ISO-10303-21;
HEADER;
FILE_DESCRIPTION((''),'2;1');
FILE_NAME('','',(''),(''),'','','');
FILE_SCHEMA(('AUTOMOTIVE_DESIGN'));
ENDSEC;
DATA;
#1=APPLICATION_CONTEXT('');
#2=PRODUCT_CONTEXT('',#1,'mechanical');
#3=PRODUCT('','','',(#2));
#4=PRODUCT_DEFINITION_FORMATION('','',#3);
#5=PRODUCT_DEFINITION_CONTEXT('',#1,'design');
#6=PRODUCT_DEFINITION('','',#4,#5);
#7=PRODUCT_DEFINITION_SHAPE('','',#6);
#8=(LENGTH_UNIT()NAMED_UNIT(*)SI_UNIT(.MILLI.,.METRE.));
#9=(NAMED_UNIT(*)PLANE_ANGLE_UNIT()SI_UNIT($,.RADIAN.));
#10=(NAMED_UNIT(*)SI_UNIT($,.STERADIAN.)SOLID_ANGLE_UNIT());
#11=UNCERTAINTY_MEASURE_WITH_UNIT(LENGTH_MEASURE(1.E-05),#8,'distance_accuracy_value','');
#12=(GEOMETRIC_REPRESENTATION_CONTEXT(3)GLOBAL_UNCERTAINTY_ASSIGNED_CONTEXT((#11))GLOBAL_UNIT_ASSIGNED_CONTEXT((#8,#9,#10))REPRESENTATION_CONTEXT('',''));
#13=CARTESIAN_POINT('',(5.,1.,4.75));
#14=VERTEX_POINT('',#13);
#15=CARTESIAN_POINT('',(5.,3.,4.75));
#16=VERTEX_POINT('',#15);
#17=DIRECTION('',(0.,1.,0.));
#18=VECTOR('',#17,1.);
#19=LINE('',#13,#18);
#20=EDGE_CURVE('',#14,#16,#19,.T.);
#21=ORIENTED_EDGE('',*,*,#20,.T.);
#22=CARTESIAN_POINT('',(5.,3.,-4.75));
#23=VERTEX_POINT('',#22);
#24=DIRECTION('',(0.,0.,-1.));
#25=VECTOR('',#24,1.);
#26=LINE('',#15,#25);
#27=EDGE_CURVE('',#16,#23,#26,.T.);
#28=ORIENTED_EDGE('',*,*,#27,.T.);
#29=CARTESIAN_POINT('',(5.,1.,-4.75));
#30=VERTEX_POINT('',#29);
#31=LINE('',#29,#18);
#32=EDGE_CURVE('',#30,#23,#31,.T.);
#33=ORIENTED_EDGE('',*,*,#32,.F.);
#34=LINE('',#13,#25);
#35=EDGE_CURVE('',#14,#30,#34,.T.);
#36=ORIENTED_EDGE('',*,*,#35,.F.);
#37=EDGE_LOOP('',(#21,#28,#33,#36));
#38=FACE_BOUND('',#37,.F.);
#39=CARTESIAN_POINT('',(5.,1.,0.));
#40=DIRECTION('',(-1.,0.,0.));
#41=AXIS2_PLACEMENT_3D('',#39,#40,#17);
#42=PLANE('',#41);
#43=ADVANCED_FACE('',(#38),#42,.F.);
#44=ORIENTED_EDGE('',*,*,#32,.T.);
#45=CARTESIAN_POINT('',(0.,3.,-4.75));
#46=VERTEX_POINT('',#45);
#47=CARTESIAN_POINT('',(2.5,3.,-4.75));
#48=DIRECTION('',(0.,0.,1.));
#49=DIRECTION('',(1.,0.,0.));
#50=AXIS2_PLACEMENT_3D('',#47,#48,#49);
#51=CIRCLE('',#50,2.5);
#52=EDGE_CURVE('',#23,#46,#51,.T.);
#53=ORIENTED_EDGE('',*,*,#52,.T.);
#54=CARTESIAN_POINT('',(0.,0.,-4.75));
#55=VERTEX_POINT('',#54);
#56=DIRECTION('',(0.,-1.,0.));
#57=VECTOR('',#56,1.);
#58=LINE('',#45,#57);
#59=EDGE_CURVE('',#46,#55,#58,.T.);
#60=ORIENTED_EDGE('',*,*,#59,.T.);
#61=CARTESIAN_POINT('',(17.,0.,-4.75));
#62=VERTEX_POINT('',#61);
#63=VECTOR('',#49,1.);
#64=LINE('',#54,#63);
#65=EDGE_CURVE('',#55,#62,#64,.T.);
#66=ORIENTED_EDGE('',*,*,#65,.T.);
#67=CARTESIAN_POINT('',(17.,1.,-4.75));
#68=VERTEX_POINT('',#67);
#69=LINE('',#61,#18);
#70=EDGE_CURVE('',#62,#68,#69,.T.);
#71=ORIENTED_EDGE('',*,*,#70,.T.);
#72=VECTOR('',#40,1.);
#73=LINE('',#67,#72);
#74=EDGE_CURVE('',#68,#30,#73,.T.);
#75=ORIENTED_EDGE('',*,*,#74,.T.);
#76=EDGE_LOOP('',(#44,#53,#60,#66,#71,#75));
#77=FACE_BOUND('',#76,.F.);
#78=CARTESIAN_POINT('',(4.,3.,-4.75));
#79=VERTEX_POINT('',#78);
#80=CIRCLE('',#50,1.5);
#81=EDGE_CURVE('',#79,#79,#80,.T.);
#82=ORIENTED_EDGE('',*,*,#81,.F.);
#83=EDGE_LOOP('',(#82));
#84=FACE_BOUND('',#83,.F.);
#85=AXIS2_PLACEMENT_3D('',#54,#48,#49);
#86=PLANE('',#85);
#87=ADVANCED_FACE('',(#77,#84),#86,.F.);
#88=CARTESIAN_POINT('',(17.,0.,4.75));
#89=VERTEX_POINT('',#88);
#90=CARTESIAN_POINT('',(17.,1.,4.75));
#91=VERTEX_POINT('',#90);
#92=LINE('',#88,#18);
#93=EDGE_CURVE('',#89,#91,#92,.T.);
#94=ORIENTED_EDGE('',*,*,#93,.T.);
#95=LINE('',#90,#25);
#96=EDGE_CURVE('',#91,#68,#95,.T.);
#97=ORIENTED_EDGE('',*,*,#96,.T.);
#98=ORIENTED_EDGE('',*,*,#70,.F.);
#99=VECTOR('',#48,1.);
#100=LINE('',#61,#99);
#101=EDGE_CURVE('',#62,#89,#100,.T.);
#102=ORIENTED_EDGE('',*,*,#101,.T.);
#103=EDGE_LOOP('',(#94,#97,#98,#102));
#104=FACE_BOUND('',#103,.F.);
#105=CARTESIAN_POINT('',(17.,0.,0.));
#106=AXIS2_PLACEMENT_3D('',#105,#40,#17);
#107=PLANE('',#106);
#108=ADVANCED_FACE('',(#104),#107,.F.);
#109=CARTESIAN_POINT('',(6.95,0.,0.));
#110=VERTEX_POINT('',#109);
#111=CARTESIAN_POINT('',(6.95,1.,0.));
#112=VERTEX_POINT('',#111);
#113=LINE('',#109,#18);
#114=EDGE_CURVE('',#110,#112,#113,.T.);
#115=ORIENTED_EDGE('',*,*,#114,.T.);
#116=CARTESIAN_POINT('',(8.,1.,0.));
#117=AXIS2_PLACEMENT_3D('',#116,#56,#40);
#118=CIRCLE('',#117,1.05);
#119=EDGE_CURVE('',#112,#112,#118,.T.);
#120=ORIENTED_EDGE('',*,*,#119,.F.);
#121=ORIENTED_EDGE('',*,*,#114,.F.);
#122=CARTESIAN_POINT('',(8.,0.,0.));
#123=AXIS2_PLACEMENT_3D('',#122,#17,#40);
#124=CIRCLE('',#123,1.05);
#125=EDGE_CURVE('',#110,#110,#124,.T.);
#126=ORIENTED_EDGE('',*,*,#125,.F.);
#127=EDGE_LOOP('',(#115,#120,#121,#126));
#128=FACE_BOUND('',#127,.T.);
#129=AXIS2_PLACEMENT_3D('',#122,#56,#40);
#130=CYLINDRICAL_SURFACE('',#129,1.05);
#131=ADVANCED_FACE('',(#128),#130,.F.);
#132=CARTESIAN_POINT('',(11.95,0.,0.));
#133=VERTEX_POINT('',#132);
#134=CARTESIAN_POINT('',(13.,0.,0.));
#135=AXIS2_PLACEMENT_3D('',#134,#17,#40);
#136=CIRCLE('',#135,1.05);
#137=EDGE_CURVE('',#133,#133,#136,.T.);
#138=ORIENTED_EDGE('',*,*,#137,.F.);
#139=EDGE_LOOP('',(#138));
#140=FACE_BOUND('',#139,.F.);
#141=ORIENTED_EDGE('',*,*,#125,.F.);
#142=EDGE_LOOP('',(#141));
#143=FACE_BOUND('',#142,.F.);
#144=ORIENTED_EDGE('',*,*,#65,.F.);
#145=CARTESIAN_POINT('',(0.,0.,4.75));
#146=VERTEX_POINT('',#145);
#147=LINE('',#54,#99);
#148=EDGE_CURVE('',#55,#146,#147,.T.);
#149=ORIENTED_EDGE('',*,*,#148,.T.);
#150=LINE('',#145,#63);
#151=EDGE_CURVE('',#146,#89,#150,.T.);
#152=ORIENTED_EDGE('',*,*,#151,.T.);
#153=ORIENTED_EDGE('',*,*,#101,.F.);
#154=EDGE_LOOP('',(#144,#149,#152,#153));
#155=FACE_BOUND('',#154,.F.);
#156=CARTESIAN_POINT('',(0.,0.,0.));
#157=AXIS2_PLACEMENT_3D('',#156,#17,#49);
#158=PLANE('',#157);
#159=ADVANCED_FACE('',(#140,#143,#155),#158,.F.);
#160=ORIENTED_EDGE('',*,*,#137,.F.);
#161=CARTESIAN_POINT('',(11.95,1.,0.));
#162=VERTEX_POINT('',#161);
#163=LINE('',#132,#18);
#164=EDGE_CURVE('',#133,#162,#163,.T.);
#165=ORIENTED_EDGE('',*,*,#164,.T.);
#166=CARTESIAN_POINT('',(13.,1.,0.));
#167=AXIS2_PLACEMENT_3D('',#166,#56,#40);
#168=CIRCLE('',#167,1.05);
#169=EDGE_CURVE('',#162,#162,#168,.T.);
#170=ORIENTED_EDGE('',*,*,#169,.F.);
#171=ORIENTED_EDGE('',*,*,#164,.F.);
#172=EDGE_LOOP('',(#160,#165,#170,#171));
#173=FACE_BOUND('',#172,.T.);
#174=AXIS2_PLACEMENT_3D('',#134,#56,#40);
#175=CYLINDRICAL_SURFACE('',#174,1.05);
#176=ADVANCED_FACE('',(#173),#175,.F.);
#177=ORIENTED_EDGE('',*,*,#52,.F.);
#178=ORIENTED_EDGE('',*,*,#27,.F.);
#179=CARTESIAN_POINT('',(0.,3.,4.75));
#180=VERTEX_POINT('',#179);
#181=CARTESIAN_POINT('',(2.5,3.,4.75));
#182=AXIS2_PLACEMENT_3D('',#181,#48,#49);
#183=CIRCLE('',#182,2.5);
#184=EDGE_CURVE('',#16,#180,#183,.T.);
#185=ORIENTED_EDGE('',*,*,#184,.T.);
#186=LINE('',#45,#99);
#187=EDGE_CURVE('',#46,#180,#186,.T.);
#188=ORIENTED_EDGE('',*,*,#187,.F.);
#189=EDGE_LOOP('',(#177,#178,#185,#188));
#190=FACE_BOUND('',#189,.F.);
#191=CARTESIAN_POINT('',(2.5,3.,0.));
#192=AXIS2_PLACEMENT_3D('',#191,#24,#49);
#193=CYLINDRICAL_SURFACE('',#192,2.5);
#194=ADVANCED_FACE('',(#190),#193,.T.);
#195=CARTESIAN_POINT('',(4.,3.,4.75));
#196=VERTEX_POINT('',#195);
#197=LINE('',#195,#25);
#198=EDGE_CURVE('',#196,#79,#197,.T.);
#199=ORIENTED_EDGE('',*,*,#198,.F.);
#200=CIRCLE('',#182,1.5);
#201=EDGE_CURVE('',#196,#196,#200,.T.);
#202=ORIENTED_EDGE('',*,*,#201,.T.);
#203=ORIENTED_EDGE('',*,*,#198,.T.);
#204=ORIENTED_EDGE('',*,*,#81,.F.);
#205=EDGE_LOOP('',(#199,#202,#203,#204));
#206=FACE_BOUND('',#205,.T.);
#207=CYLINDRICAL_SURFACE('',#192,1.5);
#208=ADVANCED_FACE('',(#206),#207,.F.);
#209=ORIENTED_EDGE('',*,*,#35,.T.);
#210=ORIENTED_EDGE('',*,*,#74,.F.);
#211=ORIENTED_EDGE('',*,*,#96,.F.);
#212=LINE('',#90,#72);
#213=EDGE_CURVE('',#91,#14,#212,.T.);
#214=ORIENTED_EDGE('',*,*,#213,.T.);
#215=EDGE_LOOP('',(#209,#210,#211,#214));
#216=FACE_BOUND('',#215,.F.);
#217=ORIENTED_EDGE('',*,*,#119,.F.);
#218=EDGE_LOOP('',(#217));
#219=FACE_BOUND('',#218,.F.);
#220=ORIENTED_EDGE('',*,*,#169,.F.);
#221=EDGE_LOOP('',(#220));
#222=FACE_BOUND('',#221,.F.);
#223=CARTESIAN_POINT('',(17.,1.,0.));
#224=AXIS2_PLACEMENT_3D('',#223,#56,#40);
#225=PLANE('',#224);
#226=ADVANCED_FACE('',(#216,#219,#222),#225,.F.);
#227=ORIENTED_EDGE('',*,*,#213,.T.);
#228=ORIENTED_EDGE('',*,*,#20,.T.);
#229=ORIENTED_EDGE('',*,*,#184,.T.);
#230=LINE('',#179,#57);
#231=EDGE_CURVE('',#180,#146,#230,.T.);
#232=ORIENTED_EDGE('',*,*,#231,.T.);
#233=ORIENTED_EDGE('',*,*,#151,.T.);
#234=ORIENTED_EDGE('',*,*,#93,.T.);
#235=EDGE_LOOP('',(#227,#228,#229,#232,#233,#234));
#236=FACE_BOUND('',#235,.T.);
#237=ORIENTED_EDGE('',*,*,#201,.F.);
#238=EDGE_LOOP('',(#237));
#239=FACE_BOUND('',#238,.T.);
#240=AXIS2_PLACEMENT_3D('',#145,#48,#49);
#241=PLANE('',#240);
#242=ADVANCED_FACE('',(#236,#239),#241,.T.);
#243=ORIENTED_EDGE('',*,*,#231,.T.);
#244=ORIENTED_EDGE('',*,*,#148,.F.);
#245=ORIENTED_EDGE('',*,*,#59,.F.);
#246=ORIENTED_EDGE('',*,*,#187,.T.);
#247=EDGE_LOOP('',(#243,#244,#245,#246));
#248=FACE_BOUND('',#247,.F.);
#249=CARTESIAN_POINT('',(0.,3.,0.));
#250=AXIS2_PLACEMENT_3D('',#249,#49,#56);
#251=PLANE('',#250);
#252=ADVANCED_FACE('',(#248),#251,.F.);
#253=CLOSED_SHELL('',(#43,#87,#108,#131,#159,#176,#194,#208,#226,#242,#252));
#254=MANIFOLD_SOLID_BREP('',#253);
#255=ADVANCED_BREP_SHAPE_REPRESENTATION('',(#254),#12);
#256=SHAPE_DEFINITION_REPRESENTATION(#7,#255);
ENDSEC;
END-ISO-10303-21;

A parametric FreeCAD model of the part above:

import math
import FreeCAD as App
import Part
import Sketcher

V = App.Vector
Q = App.Units.Quantity

doc = App.newDocument("Part")
body = doc.addObject("PartDesign::Body", "Body")

sketch1 = body.newObject("Sketcher::SketchObject", "Sketch")
sketch1.AttachmentSupport = (doc.getObject("XY_Plane"), [""])
sketch1.MapMode = "FlatFace"
sketch1.addGeometry(Part.ArcOfCircle(Part.Circle(V(2.5, 3, 0), V(0, 0, 1), 2.5), math.radians(0), math.radians(180)), False)
sketch1.addGeometry(Part.LineSegment(V(0, 3, 0), V(0, 0, 0)), False)
sketch1.addGeometry(Part.LineSegment(V(0, 0, 0), V(17, 0, 0)), False)
sketch1.addGeometry(Part.LineSegment(V(17, 0, 0), V(17, 1, 0)), False)
sketch1.addGeometry(Part.LineSegment(V(17, 1, 0), V(5, 1, 0)), False)
sketch1.addGeometry(Part.LineSegment(V(5, 1, 0), V(5, 3, 0)), False)
sketch1.addGeometry(Part.Circle(V(2.5, 3, 0), V(0, 0, 1), 1.5), False)
sketch1.addConstraint(Sketcher.Constraint("Tangent", 0, 2, 1, 1))
sketch1.addConstraint(Sketcher.Constraint("Coincident", 1, 2, 2, 1))
sketch1.addConstraint(Sketcher.Constraint("Coincident", 2, 2, 3, 1))
sketch1.addConstraint(Sketcher.Constraint("Coincident", 3, 2, 4, 1))
sketch1.addConstraint(Sketcher.Constraint("Coincident", 4, 2, 5, 1))
sketch1.addConstraint(Sketcher.Constraint("Tangent", 5, 2, 0, 1))
sketch1.addConstraint(Sketcher.Constraint("Vertical", 1))
sketch1.addConstraint(Sketcher.Constraint("Horizontal", 2))
sketch1.addConstraint(Sketcher.Constraint("Vertical", 3))
sketch1.addConstraint(Sketcher.Constraint("Horizontal", 4))
sketch1.addConstraint(Sketcher.Constraint("Vertical", 5))
sketch1.addConstraint(Sketcher.Constraint("Coincident", 1, 2, -1, 1))
sketch1.addConstraint(Sketcher.Constraint("Coincident", 6, 3, 0, 3))
sketch1.addConstraint(Sketcher.Constraint("Diameter", 6, Q("3 mm")))
sketch1.addConstraint(Sketcher.Constraint("Radius", 0, Q("2.5 mm")))
sketch1.addConstraint(Sketcher.Constraint("DistanceX", 2, 1, 2, 2, Q("17 mm")))
sketch1.addConstraint(Sketcher.Constraint("DistanceY", 1, 2, 1, 1, Q("3 mm")))
sketch1.addConstraint(Sketcher.Constraint("DistanceY", 3, 1, 3, 2, Q("1 mm")))
pad1 = body.newObject("PartDesign::Pad", "Pad")
pad1.Profile = sketch1
pad1.Length = 9.5
pad1.Midplane = True

sketch2 = body.newObject("Sketcher::SketchObject", "Sketch001")
sketch2.AttachmentSupport = (doc.getObject("XZ_Plane"), [""])
sketch2.MapMode = "FlatFace"
sketch2.addGeometry(Part.Circle(V(8, 0, 0), V(0, 0, 1), 1.1), False)
sketch2.addConstraint(Sketcher.Constraint("PointOnObject", 0, 3, -1))
sketch2.addConstraint(Sketcher.Constraint("Diameter", 0, Q("2.1 mm")))
sketch2.addConstraint(Sketcher.Constraint("DistanceX", -1, 1, 0, 3, Q("8 mm")))
pocket1 = body.newObject("PartDesign::Pocket", "Pocket")
pocket1.Profile = sketch2
pocket1.Length = 9.5
pocket1.Midplane = True

sketch3 = body.newObject("Sketcher::SketchObject", "Sketch002")
sketch3.AttachmentSupport = (doc.getObject("XZ_Plane"), [""])
sketch3.MapMode = "FlatFace"
sketch3.addGeometry(Part.Circle(V(13, 0, 0), V(0, 0, 1), 1.1), False)
sketch3.addConstraint(Sketcher.Constraint("PointOnObject", 0, 3, -1))
sketch3.addConstraint(Sketcher.Constraint("Diameter", 0, Q("2.1 mm")))
sketch3.addConstraint(Sketcher.Constraint("DistanceX", -1, 1, 0, 3, Q("13 mm")))
pocket2 = body.newObject("PartDesign::Pocket", "Pocket001")
pocket2.Profile = sketch3
pocket2.Length = 9.5
pocket2.Midplane = True

doc.recompute()
